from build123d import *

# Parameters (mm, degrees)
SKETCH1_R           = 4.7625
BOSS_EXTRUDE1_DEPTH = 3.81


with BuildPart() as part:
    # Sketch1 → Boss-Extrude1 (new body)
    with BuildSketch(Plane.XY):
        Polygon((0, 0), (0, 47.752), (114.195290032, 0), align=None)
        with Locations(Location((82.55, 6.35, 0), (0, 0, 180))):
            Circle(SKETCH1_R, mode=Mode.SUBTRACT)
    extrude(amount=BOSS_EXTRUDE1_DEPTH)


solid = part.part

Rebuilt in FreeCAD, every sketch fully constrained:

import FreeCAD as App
import Part
import Sketcher
Q = App.Units.Quantity


def add_polygon(sketch, points):
    """Adds a closed chain of lines whose ends are joined by coincident constraints."""
    first, n = sketch.GeometryCount, len(points)
    for a, b in zip(points, points[1:] + points[:1]):
        sketch.addGeometry(Part.LineSegment(App.Vector(*a, 0), App.Vector(*b, 0)), False)
    for i in range(n):
        sketch.addConstraint(Sketcher.Constraint("Coincident", first + i, 2, first + (i + 1) % n, 1))

doc = App.newDocument("Part")
body = doc.addObject("PartDesign::Body", "Body")

# Sketch on XY plane
sketch1 = body.newObject("Sketcher::SketchObject", "Sketch")
sketch1.AttachmentSupport = (doc.getObject("XY_Plane"), [""])
sketch1.MapMode = "FlatFace"
add_polygon(sketch1, [(0, 47.8), (0, 0), (114.2, 0)])  # lines 0-2
sketch1.addGeometry(Part.Circle(App.Vector(82.5, 6.3, 0), App.Vector(0, 0, 1), 4.8), False)  # 3
sketch1.addConstraint([
    Sketcher.Constraint("Vertical", 0),
    Sketcher.Constraint("Horizontal", 1),
    Sketcher.Constraint("Coincident", 0, 2, -1, 1),
    Sketcher.Constraint("Diameter", 3, Q("0.375 in")),
    Sketcher.Constraint("DistanceY", 0, 2, 0, 1, Q("1.88 in")),
    Sketcher.Constraint("DistanceX", -1, 1, 3, 3, Q("3.25 in")),
    Sketcher.Constraint("DistanceY", -1, 1, 3, 3, Q("0.25 in")),
    Sketcher.Constraint("DistanceX", 1, 1, 1, 2, Q("114.19529 mm")),
])
pad1 = body.newObject("PartDesign::Pad", "Pad")
pad1.Profile = sketch1
pad1.Length = Q("0.15 in")

doc.recompute()
